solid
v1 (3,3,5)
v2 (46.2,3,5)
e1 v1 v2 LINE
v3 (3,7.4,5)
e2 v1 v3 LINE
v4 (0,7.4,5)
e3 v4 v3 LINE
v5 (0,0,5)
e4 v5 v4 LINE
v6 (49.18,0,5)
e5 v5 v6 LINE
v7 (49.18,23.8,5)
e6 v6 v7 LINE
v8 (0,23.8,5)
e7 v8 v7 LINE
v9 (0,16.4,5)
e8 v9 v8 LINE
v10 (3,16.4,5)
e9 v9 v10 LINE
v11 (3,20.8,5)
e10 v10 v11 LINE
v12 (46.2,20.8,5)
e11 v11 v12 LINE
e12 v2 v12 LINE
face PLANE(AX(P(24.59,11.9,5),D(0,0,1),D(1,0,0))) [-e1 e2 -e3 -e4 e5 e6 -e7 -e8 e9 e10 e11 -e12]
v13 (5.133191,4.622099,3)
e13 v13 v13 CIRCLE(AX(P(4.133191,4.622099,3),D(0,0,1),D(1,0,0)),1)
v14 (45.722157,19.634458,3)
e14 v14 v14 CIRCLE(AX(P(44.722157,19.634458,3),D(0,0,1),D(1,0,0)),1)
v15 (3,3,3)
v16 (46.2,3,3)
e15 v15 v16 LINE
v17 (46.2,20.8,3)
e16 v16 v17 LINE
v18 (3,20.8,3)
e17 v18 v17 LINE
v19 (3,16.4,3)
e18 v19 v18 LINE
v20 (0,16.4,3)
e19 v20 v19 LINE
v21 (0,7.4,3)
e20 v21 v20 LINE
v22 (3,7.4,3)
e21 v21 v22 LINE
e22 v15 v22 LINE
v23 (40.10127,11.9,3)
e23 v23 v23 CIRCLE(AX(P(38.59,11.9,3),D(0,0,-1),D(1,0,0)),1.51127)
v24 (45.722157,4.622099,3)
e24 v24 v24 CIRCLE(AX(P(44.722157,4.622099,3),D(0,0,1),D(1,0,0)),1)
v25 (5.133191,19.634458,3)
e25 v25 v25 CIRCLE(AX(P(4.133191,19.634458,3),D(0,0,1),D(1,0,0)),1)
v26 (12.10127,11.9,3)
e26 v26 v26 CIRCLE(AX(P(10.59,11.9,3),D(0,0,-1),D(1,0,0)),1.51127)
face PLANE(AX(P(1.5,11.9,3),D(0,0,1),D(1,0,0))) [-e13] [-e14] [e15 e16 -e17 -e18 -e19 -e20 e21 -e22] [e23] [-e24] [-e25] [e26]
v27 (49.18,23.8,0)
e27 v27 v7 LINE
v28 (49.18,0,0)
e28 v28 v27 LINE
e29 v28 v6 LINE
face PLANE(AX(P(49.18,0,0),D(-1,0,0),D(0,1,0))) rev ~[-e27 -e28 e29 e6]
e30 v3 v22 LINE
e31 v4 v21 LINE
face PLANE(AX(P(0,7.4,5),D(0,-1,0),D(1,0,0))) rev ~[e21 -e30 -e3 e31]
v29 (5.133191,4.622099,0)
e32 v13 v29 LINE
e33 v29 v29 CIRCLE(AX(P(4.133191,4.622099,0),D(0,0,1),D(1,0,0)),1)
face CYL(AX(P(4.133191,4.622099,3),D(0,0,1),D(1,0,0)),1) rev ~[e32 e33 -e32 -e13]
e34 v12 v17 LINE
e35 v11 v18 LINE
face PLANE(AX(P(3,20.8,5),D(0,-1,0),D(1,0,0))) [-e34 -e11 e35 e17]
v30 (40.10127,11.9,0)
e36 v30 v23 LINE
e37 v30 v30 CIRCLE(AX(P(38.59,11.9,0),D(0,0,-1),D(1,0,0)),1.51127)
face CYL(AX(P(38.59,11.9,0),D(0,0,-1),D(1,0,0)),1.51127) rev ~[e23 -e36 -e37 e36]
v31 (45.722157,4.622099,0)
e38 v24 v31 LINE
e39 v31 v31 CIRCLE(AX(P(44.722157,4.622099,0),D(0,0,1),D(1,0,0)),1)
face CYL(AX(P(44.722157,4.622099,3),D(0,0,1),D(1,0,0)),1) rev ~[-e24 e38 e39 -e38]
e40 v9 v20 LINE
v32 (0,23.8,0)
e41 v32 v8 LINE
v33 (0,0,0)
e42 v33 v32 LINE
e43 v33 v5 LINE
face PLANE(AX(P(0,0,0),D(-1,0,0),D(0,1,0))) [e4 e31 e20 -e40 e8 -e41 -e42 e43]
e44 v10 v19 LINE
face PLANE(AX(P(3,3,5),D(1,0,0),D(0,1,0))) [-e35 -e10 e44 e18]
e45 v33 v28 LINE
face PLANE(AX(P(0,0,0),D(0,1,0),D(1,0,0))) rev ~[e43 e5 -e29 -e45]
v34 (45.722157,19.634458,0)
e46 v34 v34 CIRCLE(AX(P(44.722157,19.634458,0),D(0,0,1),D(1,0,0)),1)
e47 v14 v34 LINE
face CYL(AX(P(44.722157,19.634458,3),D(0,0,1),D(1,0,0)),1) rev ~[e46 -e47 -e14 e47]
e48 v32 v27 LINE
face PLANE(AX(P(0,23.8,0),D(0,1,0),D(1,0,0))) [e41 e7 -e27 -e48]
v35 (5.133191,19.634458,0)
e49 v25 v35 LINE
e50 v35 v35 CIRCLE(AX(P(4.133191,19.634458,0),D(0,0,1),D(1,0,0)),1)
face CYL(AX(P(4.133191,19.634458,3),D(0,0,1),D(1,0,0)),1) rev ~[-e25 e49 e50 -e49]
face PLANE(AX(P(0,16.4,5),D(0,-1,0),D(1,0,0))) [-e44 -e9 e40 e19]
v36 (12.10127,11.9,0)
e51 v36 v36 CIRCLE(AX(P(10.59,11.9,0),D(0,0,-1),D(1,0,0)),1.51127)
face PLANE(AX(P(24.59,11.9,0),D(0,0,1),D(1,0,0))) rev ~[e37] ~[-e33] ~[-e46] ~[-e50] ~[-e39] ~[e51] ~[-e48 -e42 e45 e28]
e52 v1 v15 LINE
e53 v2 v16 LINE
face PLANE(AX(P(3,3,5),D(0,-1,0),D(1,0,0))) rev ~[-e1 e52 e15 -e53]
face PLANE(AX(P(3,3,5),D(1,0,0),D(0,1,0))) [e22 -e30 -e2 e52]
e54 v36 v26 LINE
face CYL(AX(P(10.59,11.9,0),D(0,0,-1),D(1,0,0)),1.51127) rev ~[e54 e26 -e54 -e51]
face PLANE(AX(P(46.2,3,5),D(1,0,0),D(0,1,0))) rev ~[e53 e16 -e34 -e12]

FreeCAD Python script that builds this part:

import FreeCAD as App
import Part
import Sketcher

V = App.Vector

doc = App.newDocument("Part")
body = doc.addObject("PartDesign::Body", "Body")

sketch1 = body.newObject("Sketcher::SketchObject", "Sketch")
sketch1.AttachmentSupport = (doc.getObject("XY_Plane"), [""])
sketch1.MapMode = "FlatFace"
sketch1.addGeometry([
    Part.LineSegment(V(0, 24, 0), V(0, 0, 0)),
    Part.LineSegment(V(0, 0, 0), V(49, 0, 0)),
    Part.LineSegment(V(49, 0, 0), V(49, 24, 0)),
    Part.LineSegment(V(49, 24, 0), V(0, 24, 0)),
], False)
sketch1.addConstraint([
    Sketcher.Constraint("Coincident", 0, 2, 1, 1),
    Sketcher.Constraint("Coincident", 1, 2, 2, 1),
    Sketcher.Constraint("Coincident", 2, 2, 3, 1),
    Sketcher.Constraint("Coincident", 3, 2, 0, 1),
    Sketcher.Constraint("Vertical", 0),
    Sketcher.Constraint("Horizontal", 1),
    Sketcher.Constraint("Vertical", 2),
    Sketcher.Constraint("Horizontal", 3),
    Sketcher.Constraint("Coincident", 0, 2, -1, 1),
    Sketcher.Constraint("DistanceY", 0, 2, 0, 1, 23.8),
    Sketcher.Constraint("DistanceX", 1, 1, 1, 2, 49.18),
])
pad1 = body.newObject("PartDesign::Pad", "Pad")
pad1.Profile = sketch1
pad1.Length = 5

sketch2 = body.newObject("Sketcher::SketchObject", "Sketch001")
sketch2.AttachmentSupport = (doc.getObject("XY_Plane"), [""])
sketch2.MapMode = "FlatFace"
sketch2.AttachmentOffset = App.Placement(V(0, 0, 5), App.Rotation())
sketch2.addGeometry([
    Part.LineSegment(V(3, 21, 0), V(3, 3, 0)),
    Part.LineSegment(V(3, 3, 0), V(46, 3, 0)),
    Part.LineSegment(V(46, 3, 0), V(46, 21, 0)),
    Part.LineSegment(V(46, 21, 0), V(3, 21, 0)),
], False)
sketch2.addConstraint([
    Sketcher.Constraint("Coincident", 0, 2, 1, 1),
    Sketcher.Constraint("Coincident", 1, 2, 2, 1),
    Sketcher.Constraint("Coincident", 2, 2, 3, 1),
    Sketcher.Constraint("Coincident", 3, 2, 0, 1),
    Sketcher.Constraint("Vertical", 0),
    Sketcher.Constraint("Horizontal", 1),
    Sketcher.Constraint("Vertical", 2),
    Sketcher.Constraint("Horizontal", 3),
    Sketcher.Constraint("DistanceX", 1, 1, 1, 2, 43.2),
    Sketcher.Constraint("DistanceY", 0, 2, 0, 1, 17.8),
    Sketcher.Constraint("DistanceX", -1, 1, 0, 2, 3.0),
    Sketcher.Constraint("DistanceY", -1, 1, 0, 2, 3.0),
])
pocket1 = body.newObject("PartDesign::Pocket", "Pocket")
pocket1.Profile = sketch2
pocket1.Length = 2

sketch3 = body.newObject("Sketcher::SketchObject", "Sketch002")
sketch3.AttachmentSupport = (doc.getObject("XY_Plane"), [""])
sketch3.MapMode = "FlatFace"
sketch3.AttachmentOffset = App.Placement(V(0, 0, 5), App.Rotation())
sketch3.addGeometry([
    Part.LineSegment(V(0, 16.4, 0), V(0, 7.4, 0)),
    Part.LineSegment(V(0, 7.4, 0), V(3, 7.4, 0)),
    Part.LineSegment(V(3, 7.4, 0), V(3, 16.4, 0)),
    Part.LineSegment(V(3, 16.4, 0), V(0, 16.4, 0)),
], False)
sketch3.addConstraint([
    Sketcher.Constraint("Coincident", 0, 2, 1, 1),
    Sketcher.Constraint("Coincident", 1, 2, 2, 1),
    Sketcher.Constraint("Coincident", 2, 2, 3, 1),
    Sketcher.Constraint("Coincident", 3, 2, 0, 1),
    Sketcher.Constraint("Vertical", 0),
    Sketcher.Constraint("Horizontal", 1),
    Sketcher.Constraint("Vertical", 2),
    Sketcher.Constraint("Horizontal", 3),
    Sketcher.Constraint("PointOnObject", 0, 2, -2),
    Sketcher.Constraint("DistanceX", 1, 1, 1, 2, 3.0),
    Sketcher.Constraint("DistanceY", 0, 2, 0, 1, 9.0),
    Sketcher.Constraint("DistanceY", -1, 1, 0, 2, 7.4),
])
pocket2 = body.newObject("PartDesign::Pocket", "Pocket001")
pocket2.Profile = sketch3
pocket2.Length = 2

sketch4 = body.newObject("Sketcher::SketchObject", "Sketch003")
sketch4.AttachmentSupport = (doc.getObject("XY_Plane"), [""])
sketch4.MapMode = "FlatFace"
sketch4.AttachmentOffset = App.Placement(V(0, 0, 3), App.Rotation())
sketch4.addGeometry([
    Part.Circle(V(44.7, 19.6, 0), V(0, 0, 1), 1),
    Part.Circle(V(44.7, 4.6, 0), V(0, 0, 1), 1),
    Part.Circle(V(4.1, 19.6, 0), V(0, 0, 1), 1),
    Part.Circle(V(4.1, 4.6, 0), V(0, 0, 1), 1),
], False)
sketch4.addConstraint([
    Sketcher.Constraint("Equal", 0, 1),
    Sketcher.Constraint("Equal", 1, 2),
    Sketcher.Constraint("Equal", 2, 3),
    Sketcher.Constraint("Horizontal", 0, 3, 2, 3),
    Sketcher.Constraint("Horizontal", 1, 3, 3, 3),
    Sketcher.Constraint("Vertical", 0, 3, 1, 3),
    Sketcher.Constraint("Vertical", 2, 3, 3, 3),
    Sketcher.Constraint("Diameter", 0, 2.0),
    Sketcher.Constraint("DistanceY", -1, 1, 1, 3, 4.622099),
    Sketcher.Constraint("DistanceX", -1, 1, 2, 3, 4.133191),
    Sketcher.Constraint("DistanceY", 1, 3, 0, 3, 15.012359),
    Sketcher.Constraint("DistanceX", -1, 1, 0, 3, 44.722157),
])
pocket3 = body.newObject("PartDesign::Pocket", "Pocket002")
pocket3.Profile = sketch4
pocket3.Length = 5

sketch5 = body.newObject("Sketcher::SketchObject", "Sketch004")
sketch5.AttachmentSupport = (doc.getObject("XY_Plane"), [""])
sketch5.MapMode = "FlatFace"
sketch5.addGeometry([
    Part.Circle(V(10.6, 11.9, 0), V(0, 0, 1), 1.5),
    Part.Circle(V(38.6, 11.9, 0), V(0, 0, 1), 1.5),
], False)
sketch5.addConstraint([
    Sketcher.Constraint("Equal", 0, 1),
    Sketcher.Constraint("Horizontal", 0, 3, 1, 3),
    Sketcher.Constraint("DistanceX", 0, 3, 1, 3, 28.0),
    Sketcher.Constraint("DistanceY", -1, 1, 0, 3, 11.9),
    Sketcher.Constraint("Diameter", 0, 3.02254),
    Sketcher.Constraint("DistanceX", -1, 1, 0, 3, 10.59),
])
pocket4 = body.newObject("PartDesign::Pocket", "Pocket003")
pocket4.Profile = sketch5
pocket4.Length = 5
pocket4.Reversed = True

doc.recompute()
